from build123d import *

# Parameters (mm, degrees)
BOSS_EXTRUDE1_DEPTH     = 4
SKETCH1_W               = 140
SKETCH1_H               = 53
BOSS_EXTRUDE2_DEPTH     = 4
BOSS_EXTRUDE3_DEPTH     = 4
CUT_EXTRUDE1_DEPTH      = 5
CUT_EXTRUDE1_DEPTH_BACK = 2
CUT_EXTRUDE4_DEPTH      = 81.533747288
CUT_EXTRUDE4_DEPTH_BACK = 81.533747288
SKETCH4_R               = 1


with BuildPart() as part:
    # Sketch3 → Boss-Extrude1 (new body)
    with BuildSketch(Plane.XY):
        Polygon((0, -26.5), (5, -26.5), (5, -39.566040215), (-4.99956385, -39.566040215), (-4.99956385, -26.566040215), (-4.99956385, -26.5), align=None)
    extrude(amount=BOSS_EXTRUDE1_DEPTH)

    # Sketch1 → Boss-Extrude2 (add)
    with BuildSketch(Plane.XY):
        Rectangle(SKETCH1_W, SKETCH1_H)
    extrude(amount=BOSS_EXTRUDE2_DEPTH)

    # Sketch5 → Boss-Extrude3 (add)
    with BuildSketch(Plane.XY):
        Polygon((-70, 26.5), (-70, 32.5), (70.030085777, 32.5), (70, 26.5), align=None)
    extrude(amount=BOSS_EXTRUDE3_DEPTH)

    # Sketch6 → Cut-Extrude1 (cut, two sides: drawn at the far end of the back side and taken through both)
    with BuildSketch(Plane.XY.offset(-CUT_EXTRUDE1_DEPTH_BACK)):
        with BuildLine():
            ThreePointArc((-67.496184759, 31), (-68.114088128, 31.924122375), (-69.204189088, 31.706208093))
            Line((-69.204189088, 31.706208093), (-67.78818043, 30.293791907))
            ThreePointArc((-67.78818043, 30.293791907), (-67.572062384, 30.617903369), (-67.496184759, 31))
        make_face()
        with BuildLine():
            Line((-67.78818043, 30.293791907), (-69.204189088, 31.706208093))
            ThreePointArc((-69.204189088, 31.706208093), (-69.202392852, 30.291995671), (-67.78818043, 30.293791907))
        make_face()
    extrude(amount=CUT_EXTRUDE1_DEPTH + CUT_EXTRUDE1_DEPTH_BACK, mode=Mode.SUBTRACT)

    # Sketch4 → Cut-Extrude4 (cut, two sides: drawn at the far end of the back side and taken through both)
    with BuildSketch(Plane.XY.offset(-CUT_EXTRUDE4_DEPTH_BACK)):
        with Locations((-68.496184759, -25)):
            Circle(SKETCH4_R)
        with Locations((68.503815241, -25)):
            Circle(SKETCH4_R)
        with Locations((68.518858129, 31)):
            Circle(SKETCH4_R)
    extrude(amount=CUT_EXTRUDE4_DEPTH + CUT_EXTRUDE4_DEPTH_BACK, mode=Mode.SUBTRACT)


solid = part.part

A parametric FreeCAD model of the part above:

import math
import FreeCAD as App
import Part
import Sketcher

doc = App.newDocument("Part")
body = doc.addObject("PartDesign::Body", "Body")

sketch1 = body.newObject("Sketcher::SketchObject", "Sketch")
sketch1.AttachmentSupport = (doc.getObject("XY_Plane"), [""])
sketch1.MapMode = "FlatFace"
sketch1.addGeometry([
    Part.LineSegment(App.Vector(5, -26.5, 0), App.Vector(-4.999564, -26.5, 0)),
    Part.LineSegment(App.Vector(-4.999564, -26.5, 0), App.Vector(-4.999564, -39.56604, 0)),
    Part.LineSegment(App.Vector(-4.999564, -39.56604, 0), App.Vector(5, -39.56604, 0)),
    Part.LineSegment(App.Vector(5, -39.56604, 0), App.Vector(5, -26.5, 0)),
], False)
sketch1.addConstraint([
    Sketcher.Constraint("Coincident", 0, 2, 1, 1),
    Sketcher.Constraint("Coincident", 1, 2, 2, 1),
    Sketcher.Constraint("Coincident", 2, 2, 3, 1),
    Sketcher.Constraint("Coincident", 3, 2, 0, 1),
    Sketcher.Constraint("Horizontal", 0),
    Sketcher.Constraint("Vertical", 1),
    Sketcher.Constraint("Horizontal", 2),
    Sketcher.Constraint("Vertical", 3),
    Sketcher.Constraint("DistanceX", -1, 1, 2, 2, 5.0),
    Sketcher.Constraint("DistanceY", 0, 2, -1, 1, 26.5),
    Sketcher.Constraint("DistanceY", 1, 2, 1, 1, 13.06604),
    Sketcher.Constraint("DistanceX", 0, 2, 0, 1, 9.999564),
])
pad1 = body.newObject("PartDesign::Pad", "Pad")
pad1.Profile = sketch1
pad1.Length = 4

sketch2 = body.newObject("Sketcher::SketchObject", "Sketch001")
sketch2.AttachmentSupport = (doc.getObject("XY_Plane"), [""])
sketch2.MapMode = "FlatFace"
sketch2.addGeometry([
    Part.LineSegment(App.Vector(-70, 26.5, 0), App.Vector(-70, -26.5, 0)),
    Part.LineSegment(App.Vector(-70, -26.5, 0), App.Vector(70, -26.5, 0)),
    Part.LineSegment(App.Vector(70, -26.5, 0), App.Vector(70, 26.5, 0)),
    Part.LineSegment(App.Vector(70, 26.5, 0), App.Vector(-70, 26.5, 0)),
], False)
sketch2.addConstraint([
    Sketcher.Constraint("Coincident", 0, 2, 1, 1),
    Sketcher.Constraint("Coincident", 1, 2, 2, 1),
    Sketcher.Constraint("Coincident", 2, 2, 3, 1),
    Sketcher.Constraint("Coincident", 3, 2, 0, 1),
    Sketcher.Constraint("Vertical", 0),
    Sketcher.Constraint("Horizontal", 1),
    Sketcher.Constraint("Vertical", 2),
    Sketcher.Constraint("Horizontal", 3),
    Sketcher.Constraint("Symmetric", 0, 2, 2, 2, -1, 1),
    Sketcher.Constraint("DistanceX", 1, 1, 1, 2, 140.0),
    Sketcher.Constraint("DistanceY", 0, 2, 0, 1, 53.0),
])
pad2 = body.newObject("PartDesign::Pad", "Pad001")
pad2.Profile = sketch2
pad2.Length = 4

sketch3 = body.newObject("Sketcher::SketchObject", "Sketch002")
sketch3.AttachmentSupport = (doc.getObject("XY_Plane"), [""])
sketch3.MapMode = "FlatFace"
sketch3.addGeometry([
    Part.LineSegment(App.Vector(-70, 32.5, 0), App.Vector(-70, 26.5, 0)),
    Part.LineSegment(App.Vector(-70, 26.5, 0), App.Vector(70, 26.5, 0)),
    Part.LineSegment(App.Vector(70, 26.5, 0), App.Vector(70.030086, 32.5, 0)),
    Part.LineSegment(App.Vector(70.030086, 32.5, 0), App.Vector(-70, 32.5, 0)),
], False)
sketch3.addConstraint([
    Sketcher.Constraint("Coincident", 0, 2, 1, 1),
    Sketcher.Constraint("Coincident", 1, 2, 2, 1),
    Sketcher.Constraint("Coincident", 2, 2, 3, 1),
    Sketcher.Constraint("Coincident", 3, 2, 0, 1),
    Sketcher.Constraint("Vertical", 0),
    Sketcher.Constraint("Horizontal", 1),
    Sketcher.Constraint("Horizontal", 3),
    Sketcher.Constraint("DistanceX", 1, 1, 1, 2, 140.0),
    Sketcher.Constraint("DistanceY", 0, 2, 0, 1, 6.0),
    Sketcher.Constraint("DistanceX", 0, 2, -1, 1, 70.0),
    Sketcher.Constraint("DistanceY", -1, 1, 0, 2, 26.5),
    Sketcher.Constraint("DistanceX", 3, 2, 3, 1, 140.030086),
])
pad3 = body.newObject("PartDesign::Pad", "Pad002")
pad3.Profile = sketch3
pad3.Length = 4

sketch4 = body.newObject("Sketcher::SketchObject", "Sketch003")
sketch4.AttachmentSupport = (doc.getObject("XY_Plane"), [""])
sketch4.MapMode = "FlatFace"
sketch4.addGeometry([
    Part.ArcOfCircle(Part.Circle(App.Vector(-68.496185, 31, 0), App.Vector(0, 0, 1), 1), math.radians(0), math.radians(135.072773)),
    Part.ArcOfCircle(Part.Circle(App.Vector(-68.496185, 31, 0), App.Vector(0, 0, 1), 1), math.radians(135.072773), math.radians(315.072773)),
    Part.ArcOfCircle(Part.Circle(App.Vector(-68.496185, 31, 0), App.Vector(0, 0, 1), 1), math.radians(-44.927227), math.radians(0)),
], False)
sketch4.addConstraint([
    Sketcher.Constraint("Tangent", 0, 2, 1, 1),
    Sketcher.Constraint("Tangent", 1, 2, 2, 1),
    Sketcher.Constraint("Tangent", 2, 2, 0, 1),
    Sketcher.Constraint("Horizontal", 1, 3, 2, 2),
    Sketcher.Constraint("Radius", 0, 1.0),
    Sketcher.Constraint("DistanceY", -1, 1, 0, 3, 31.0),
    Sketcher.Constraint("DistanceX", 0, 2, -1, 1, 69.204189),
    Sketcher.Constraint("DistanceY", -1, 1, 0, 2, 31.706208),
    Sketcher.Constraint("DistanceX", 1, 2, -1, 1, 67.78818),
])
pocket1 = body.newObject("PartDesign::Pocket", "Pocket")
pocket1.Profile = sketch4
pocket1.Type = "ThroughAll"
pocket1.Midplane = True

sketch5 = body.newObject("Sketcher::SketchObject", "Sketch004")
sketch5.AttachmentSupport = (doc.getObject("XY_Plane"), [""])
sketch5.MapMode = "FlatFace"
sketch5.addGeometry([
    Part.Circle(App.Vector(-68.496185, -25, 0), App.Vector(0, 0, 1), 1),
    Part.Circle(App.Vector(68.503815, -25, 0), App.Vector(0, 0, 1), 1),
    Part.Circle(App.Vector(68.518858, 31, 0), App.Vector(0, 0, 1), 1),
], False)
sketch5.addConstraint([
    Sketcher.Constraint("Equal", 0, 1),
    Sketcher.Constraint("Equal", 1, 2),
    Sketcher.Constraint("Horizontal", 0, 3, 1, 3),
    Sketcher.Constraint("Diameter", 0, 2.0),
    Sketcher.Constraint("DistanceY", 0, 3, -1, 1, 25.0),
    Sketcher.Constraint("DistanceY", -1, 1, 2, 3, 31.0),
    Sketcher.Constraint("DistanceX", 0, 3, 1, 3, 137.0),
    Sketcher.Constraint("DistanceX", -1, 1, 2, 3, 68.518858),
    Sketcher.Constraint("DistanceX", 0, 3, -1, 1, 68.496185),
])
pocket2 = body.newObject("PartDesign::Pocket", "Pocket001")
pocket2.Profile = sketch5
pocket2.Type = "ThroughAll"
pocket2.Midplane = True

doc.recompute()
